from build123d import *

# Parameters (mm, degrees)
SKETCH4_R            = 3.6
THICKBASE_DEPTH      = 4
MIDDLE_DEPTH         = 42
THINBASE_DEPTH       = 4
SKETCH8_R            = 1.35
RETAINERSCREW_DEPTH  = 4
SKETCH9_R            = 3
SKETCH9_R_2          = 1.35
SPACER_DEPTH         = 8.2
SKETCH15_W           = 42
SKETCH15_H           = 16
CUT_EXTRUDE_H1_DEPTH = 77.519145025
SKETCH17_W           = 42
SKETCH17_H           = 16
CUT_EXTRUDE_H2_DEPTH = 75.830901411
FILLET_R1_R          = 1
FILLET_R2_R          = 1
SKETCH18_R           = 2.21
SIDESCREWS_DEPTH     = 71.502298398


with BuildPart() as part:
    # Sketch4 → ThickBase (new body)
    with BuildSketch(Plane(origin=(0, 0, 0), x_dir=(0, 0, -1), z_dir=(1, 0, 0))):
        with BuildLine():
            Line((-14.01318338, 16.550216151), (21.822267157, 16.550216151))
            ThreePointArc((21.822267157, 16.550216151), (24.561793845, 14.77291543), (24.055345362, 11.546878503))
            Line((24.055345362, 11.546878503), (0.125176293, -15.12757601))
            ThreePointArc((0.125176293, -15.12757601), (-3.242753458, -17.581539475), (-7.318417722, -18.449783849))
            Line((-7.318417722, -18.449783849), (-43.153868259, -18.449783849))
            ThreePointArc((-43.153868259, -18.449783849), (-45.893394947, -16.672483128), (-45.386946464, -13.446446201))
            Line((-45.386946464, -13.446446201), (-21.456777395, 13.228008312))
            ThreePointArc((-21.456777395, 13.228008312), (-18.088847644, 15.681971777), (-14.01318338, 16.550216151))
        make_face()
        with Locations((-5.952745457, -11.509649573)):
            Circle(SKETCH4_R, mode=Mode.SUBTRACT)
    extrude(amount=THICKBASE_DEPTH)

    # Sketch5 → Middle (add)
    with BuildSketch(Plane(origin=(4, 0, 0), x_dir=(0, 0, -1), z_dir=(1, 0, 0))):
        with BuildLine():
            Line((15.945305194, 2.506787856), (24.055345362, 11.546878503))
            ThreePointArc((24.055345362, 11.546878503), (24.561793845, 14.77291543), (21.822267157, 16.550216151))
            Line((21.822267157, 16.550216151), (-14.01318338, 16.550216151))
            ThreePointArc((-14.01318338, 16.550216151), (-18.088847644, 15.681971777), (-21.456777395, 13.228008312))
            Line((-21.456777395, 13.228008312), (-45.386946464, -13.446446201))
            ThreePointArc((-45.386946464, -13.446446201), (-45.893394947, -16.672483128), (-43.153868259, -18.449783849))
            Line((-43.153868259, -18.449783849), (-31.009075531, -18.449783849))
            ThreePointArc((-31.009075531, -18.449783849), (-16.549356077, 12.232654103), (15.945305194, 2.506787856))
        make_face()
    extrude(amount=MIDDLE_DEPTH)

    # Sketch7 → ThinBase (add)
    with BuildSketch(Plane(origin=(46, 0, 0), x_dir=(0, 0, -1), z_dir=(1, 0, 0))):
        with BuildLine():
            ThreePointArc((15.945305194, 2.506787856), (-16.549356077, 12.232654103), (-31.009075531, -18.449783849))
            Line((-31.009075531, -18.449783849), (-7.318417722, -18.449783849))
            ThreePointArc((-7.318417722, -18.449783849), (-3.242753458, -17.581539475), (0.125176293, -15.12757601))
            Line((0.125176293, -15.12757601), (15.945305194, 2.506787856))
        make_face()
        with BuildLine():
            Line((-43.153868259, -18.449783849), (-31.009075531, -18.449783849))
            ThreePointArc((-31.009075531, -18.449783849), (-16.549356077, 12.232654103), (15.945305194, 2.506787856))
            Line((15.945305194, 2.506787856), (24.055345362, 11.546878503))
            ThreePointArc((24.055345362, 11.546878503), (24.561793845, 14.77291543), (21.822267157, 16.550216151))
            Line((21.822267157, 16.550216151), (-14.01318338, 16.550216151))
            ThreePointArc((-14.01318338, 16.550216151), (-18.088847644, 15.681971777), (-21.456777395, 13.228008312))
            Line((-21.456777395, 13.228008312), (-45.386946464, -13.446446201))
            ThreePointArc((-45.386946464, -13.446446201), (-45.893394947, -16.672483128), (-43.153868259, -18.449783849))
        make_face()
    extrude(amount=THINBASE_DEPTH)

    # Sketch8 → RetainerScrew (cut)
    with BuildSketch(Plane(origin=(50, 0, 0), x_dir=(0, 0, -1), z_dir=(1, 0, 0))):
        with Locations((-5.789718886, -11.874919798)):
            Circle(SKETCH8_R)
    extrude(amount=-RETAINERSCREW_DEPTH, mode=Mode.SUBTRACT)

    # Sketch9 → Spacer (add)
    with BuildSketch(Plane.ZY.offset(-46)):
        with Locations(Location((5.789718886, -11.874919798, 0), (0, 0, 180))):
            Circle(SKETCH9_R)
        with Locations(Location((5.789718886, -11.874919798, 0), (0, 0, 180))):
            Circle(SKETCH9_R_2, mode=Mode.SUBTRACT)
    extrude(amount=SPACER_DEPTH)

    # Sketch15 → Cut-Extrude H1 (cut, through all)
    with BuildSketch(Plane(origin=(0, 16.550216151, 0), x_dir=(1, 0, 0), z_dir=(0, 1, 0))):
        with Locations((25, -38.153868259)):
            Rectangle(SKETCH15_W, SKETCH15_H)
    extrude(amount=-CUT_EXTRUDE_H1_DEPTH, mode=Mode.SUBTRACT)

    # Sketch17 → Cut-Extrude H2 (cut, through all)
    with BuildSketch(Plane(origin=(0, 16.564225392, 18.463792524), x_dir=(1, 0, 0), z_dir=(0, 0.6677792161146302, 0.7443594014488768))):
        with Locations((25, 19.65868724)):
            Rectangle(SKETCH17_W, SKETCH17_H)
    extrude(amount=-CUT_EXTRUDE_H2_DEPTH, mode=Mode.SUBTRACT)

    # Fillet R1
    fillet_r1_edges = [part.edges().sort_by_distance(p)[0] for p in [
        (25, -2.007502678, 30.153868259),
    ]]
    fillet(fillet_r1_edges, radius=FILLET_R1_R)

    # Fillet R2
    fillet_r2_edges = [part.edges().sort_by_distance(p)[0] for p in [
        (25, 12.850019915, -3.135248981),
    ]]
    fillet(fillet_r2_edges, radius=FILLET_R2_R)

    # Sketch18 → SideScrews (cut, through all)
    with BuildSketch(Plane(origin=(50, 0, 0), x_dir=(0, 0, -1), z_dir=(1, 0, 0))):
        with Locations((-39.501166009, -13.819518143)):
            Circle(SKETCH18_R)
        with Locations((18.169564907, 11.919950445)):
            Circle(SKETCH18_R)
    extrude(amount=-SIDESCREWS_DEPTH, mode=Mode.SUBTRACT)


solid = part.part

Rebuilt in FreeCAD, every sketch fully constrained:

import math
import FreeCAD as App
import Part
import Sketcher

V = App.Vector
Q = App.Units.Quantity


def edges_at(feature, points):
    """Names of the edges that pass closest to the given points."""
    edges = feature.Shape.Edges
    near = lambda p: min(range(len(edges)), key=lambda i: edges[i].distToShape(Part.Vertex(*p))[0])
    return sorted({f"Edge{near(p) + 1}" for p in points})


def add_polygon(sketch, points):
    """Adds a closed chain of lines whose ends are joined by coincident constraints."""
    first, n = sketch.GeometryCount, len(points)
    for a, b in zip(points, points[1:] + points[:1]):
        sketch.addGeometry(Part.LineSegment(App.Vector(*a, 0), App.Vector(*b, 0)), False)
    for i in range(n):
        sketch.addConstraint(Sketcher.Constraint("Coincident", first + i, 2, first + (i + 1) % n, 1))

doc = App.newDocument("Part")
body = doc.addObject("PartDesign::Body", "Body")

sketch1 = body.newObject("Sketcher::SketchObject", "Sketch")
sketch1.AttachmentSupport = (doc.getObject("YZ_Plane"), [""])
sketch1.MapMode = "FlatFace"
sketch1.addGeometry([
    Part.LineSegment(V(16.6, -21.8, 0), V(16.6, 14, 0)),
    Part.ArcOfCircle(Part.Circle(V(6.6, 14, 0), V(0, 0, 1), 10), math.radians(0), math.radians(48)),
    Part.LineSegment(V(13.2, 21.5, 0), V(-13.4, 45.4, 0)),
    Part.ArcOfCircle(Part.Circle(V(-15.4, 43.2, 0), V(0, 0, 1), 3), math.radians(48), math.radians(180)),
    Part.LineSegment(V(-18.4, 43.2, 0), V(-18.4, 7.3, 0)),
    Part.ArcOfCircle(Part.Circle(V(-8.4, 7.3, 0), V(0, 0, 1), 10), math.radians(180), math.radians(228)),
    Part.LineSegment(V(-15.1, -0.1, 0), V(11.5, -24.1, 0)),
    Part.ArcOfCircle(Part.Circle(V(13.6, -21.8, 0), V(0, 0, 1), 3), math.radians(-132), math.radians(0)),
    Part.Circle(V(-11.5, 6, 0), V(0, 0, 1), 3.6),
], False)
sketch1.addConstraint([
    Sketcher.Constraint("Tangent", 0, 2, 1, 1),
    Sketcher.Constraint("Tangent", 1, 2, 2, 1),
    Sketcher.Constraint("Tangent", 2, 2, 3, 1),
    Sketcher.Constraint("Tangent", 3, 2, 4, 1),
    Sketcher.Constraint("Tangent", 4, 2, 5, 1),
    Sketcher.Constraint("Tangent", 5, 2, 6, 1),
    Sketcher.Constraint("Tangent", 6, 2, 7, 1),
    Sketcher.Constraint("Tangent", 7, 2, 0, 1),
    Sketcher.Constraint("Vertical", 0),
    Sketcher.Constraint("Vertical", 4),
    Sketcher.Constraint("Equal", 1, 5),
    Sketcher.Constraint("Equal", 3, 7),
    Sketcher.Constraint("Parallel", 2, 6),
    Sketcher.Constraint("Radius", 1, Q("10 mm")),
    Sketcher.Constraint("Radius", 3, Q("3 mm")),
    Sketcher.Constraint("Diameter", 8, Q("7.2 mm")),
    Sketcher.Constraint("DistanceX", 3, 3, 1, 3, Q("22 mm")),
    Sketcher.Constraint("DistanceY", 0, 1, 0, 2, Q("35.835451 mm")),
    Sketcher.Constraint("DistanceY", 8, 3, 2, 2, Q("39.434201 mm")),
    Sketcher.Constraint("Distance", 2, Q("35.835451 mm")),
    Sketcher.Constraint("DistanceY", -1, 1, 3, 3, Q("43.153868 mm")),
    Sketcher.Constraint("DistanceX", 8, 3, -1, 1, Q("11.50965 mm")),
    Sketcher.Constraint("DistanceX", -1, 1, 1, 2, Q("13.228008 mm")),
])
pad1 = body.newObject("PartDesign::Pad", "Pad")
pad1.Profile = sketch1
pad1.Length = 4

sketch2 = body.newObject("Sketcher::SketchObject", "Sketch001")
sketch2.AttachmentSupport = (doc.getObject("YZ_Plane"), [""])
sketch2.MapMode = "FlatFace"
sketch2.AttachmentOffset = App.Placement(V(0, 0, 4), App.Rotation())
sketch2.addGeometry([
    Part.LineSegment(V(2.5, -15.9, 0), V(11.5, -24.1, 0)),
    Part.ArcOfCircle(Part.Circle(V(13.6, -21.8, 0), V(0, 0, 1), 3), math.radians(-132), math.radians(0)),
    Part.LineSegment(V(16.6, -21.8, 0), V(16.6, 14, 0)),
    Part.ArcOfCircle(Part.Circle(V(6.6, 14, 0), V(0, 0, 1), 10), math.radians(0), math.radians(48)),
    Part.LineSegment(V(13.2, 21.5, 0), V(-13.4, 45.4, 0)),
    Part.ArcOfCircle(Part.Circle(V(-15.4, 43.2, 0), V(0, 0, 1), 3), math.radians(48), math.radians(180)),
    Part.LineSegment(V(-18.4, 43.2, 0), V(-18.4, 31, 0)),
    Part.ArcOfCircle(Part.Circle(V(-11.5, 6, 0), V(0, 0, 1), 26), math.radians(-57), math.radians(105)),
], False)
sketch2.addConstraint([
    Sketcher.Constraint("Tangent", 0, 2, 1, 1),
    Sketcher.Constraint("Tangent", 1, 2, 2, 1),
    Sketcher.Constraint("Tangent", 2, 2, 3, 1),
    Sketcher.Constraint("Tangent", 3, 2, 4, 1),
    Sketcher.Constraint("Tangent", 4, 2, 5, 1),
    Sketcher.Constraint("Tangent", 5, 2, 6, 1),
    Sketcher.Constraint("Coincident", 6, 2, 7, 2),
    Sketcher.Constraint("Coincident", 7, 1, 0, 1),
    Sketcher.Constraint("Vertical", 2),
    Sketcher.Constraint("Vertical", 6),
    Sketcher.Constraint("Equal", 1, 5),
    Sketcher.Constraint("Parallel", 0, 4),
    Sketcher.Constraint("Radius", 1, Q("3 mm")),
    Sketcher.Constraint("Radius", 3, Q("10 mm")),
    Sketcher.Constraint("DistanceX", 5, 3, 3, 3, Q("22 mm")),
    Sketcher.Constraint("Radius", 7, Q("25.999714 mm")),
    Sketcher.Constraint("DistanceY", 2, 1, 2, 2, Q("35.835451 mm")),
    Sketcher.Constraint("DistanceY", 7, 3, 4, 2, Q("39.434201 mm")),
    Sketcher.Constraint("Distance", 4, Q("35.835451 mm")),
    Sketcher.Constraint("DistanceY", 6, 2, 6, 1, Q("12.144793 mm")),
    Sketcher.Constraint("DistanceY", -1, 1, 5, 3, Q("43.153868 mm")),
    Sketcher.Constraint("DistanceX", 7, 3, -1, 1, Q("11.50965 mm")),
])
pad2 = body.newObject("PartDesign::Pad", "Pad001")
pad2.Profile = sketch2
pad2.Length = 42

sketch3 = body.newObject("Sketcher::SketchObject", "Sketch002")
sketch3.AttachmentSupport = (doc.getObject("YZ_Plane"), [""])
sketch3.MapMode = "FlatFace"
sketch3.AttachmentOffset = App.Placement(V(0, 0, 46), App.Rotation())
sketch3.addGeometry([
    Part.ArcOfCircle(Part.Circle(V(-8.4, 7.3, 0), V(0, 0, 1), 10), math.radians(180), math.radians(228)),
    Part.LineSegment(V(-15.1, -0.1, 0), V(2.5, -15.9, 0)),
    Part.LineSegment(V(2.5, -15.9, 0), V(11.5, -24.1, 0)),
    Part.ArcOfCircle(Part.Circle(V(13.6, -21.8, 0), V(0, 0, 1), 3), math.radians(-132), math.radians(0)),
    Part.LineSegment(V(16.6, -21.8, 0), V(16.6, 14, 0)),
    Part.ArcOfCircle(Part.Circle(V(6.6, 14, 0), V(0, 0, 1), 10), math.radians(0), math.radians(48)),
    Part.LineSegment(V(13.2, 21.5, 0), V(-13.4, 45.4, 0)),
    Part.ArcOfCircle(Part.Circle(V(-15.4, 43.2, 0), V(0, 0, 1), 3), math.radians(48), math.radians(180)),
    Part.LineSegment(V(-18.4, 43.2, 0), V(-18.4, 7.3, 0)),
], False)
sketch3.addConstraint([
    Sketcher.Constraint("Tangent", 0, 2, 1, 1),
    Sketcher.Constraint("Coincident", 1, 2, 2, 1),
    Sketcher.Constraint("Tangent", 2, 2, 3, 1),
    Sketcher.Constraint("Tangent", 3, 2, 4, 1),
    Sketcher.Constraint("Tangent", 4, 2, 5, 1),
    Sketcher.Constraint("Tangent", 5, 2, 6, 1),
    Sketcher.Constraint("Tangent", 6, 2, 7, 1),
    Sketcher.Constraint("Tangent", 7, 2, 8, 1),
    Sketcher.Constraint("Tangent", 8, 2, 0, 1),
    Sketcher.Constraint("Vertical", 4),
    Sketcher.Constraint("Vertical", 8),
    Sketcher.Constraint("Equal", 0, 5),
    Sketcher.Constraint("Equal", 3, 7),
    Sketcher.Constraint("Parallel", 1, 2),
    Sketcher.Constraint("Parallel", 2, 6),
    Sketcher.Constraint("Radius", 0, Q("10 mm")),
    Sketcher.Constraint("Radius", 3, Q("3 mm")),
    Sketcher.Constraint("DistanceX", 0, 3, 3, 3, Q("22 mm")),
    Sketcher.Constraint("DistanceY", 4, 1, 4, 2, Q("35.835451 mm")),
    Sketcher.Constraint("Distance", 6, Q("35.835451 mm")),
    Sketcher.Constraint("DistanceY", -1, 1, 7, 3, Q("43.153868 mm")),
    Sketcher.Constraint("DistanceX", -1, 1, 2, 2, Q("11.546879 mm")),
    Sketcher.Constraint("DistanceX", 1, 2, 3, 3, Q("11.043428 mm")),
])
pad3 = body.newObject("PartDesign::Pad", "Pad002")
pad3.Profile = sketch3
pad3.Length = 4

sketch4 = body.newObject("Sketcher::SketchObject", "Sketch003")
sketch4.AttachmentSupport = (doc.getObject("YZ_Plane"), [""])
sketch4.MapMode = "FlatFace"
sketch4.AttachmentOffset = App.Placement(V(0, 0, 50), App.Rotation())
sketch4.addGeometry(Part.Circle(V(-11.9, 5.8, 0), V(0, 0, 1), 1.4), False)
sketch4.addConstraint([
    Sketcher.Constraint("Diameter", 0, Q("2.7 mm")),
    Sketcher.Constraint("DistanceX", 0, 3, -1, 1, Q("11.87492 mm")),
    Sketcher.Constraint("DistanceY", -1, 1, 0, 3, Q("5.789719 mm")),
])
pocket1 = body.newObject("PartDesign::Pocket", "Pocket")
pocket1.Profile = sketch4
pocket1.Length = 4

sketch5 = body.newObject("Sketcher::SketchObject", "Sketch004")
sketch5.AttachmentSupport = (doc.getObject("YZ_Plane"), [""])
sketch5.MapMode = "FlatFace"
sketch5.AttachmentOffset = App.Placement(V(0, 0, 46), App.Rotation())
sketch5.addGeometry([
    Part.Circle(V(-11.9, 5.8, 0), V(0, 0, 1), 3),
    Part.Circle(V(-11.9, 5.8, 0), V(0, 0, 1), 1.4),
], False)
sketch5.addConstraint([
    Sketcher.Constraint("Coincident", 1, 3, 0, 3),
    Sketcher.Constraint("Diameter", 0, Q("6 mm")),
    Sketcher.Constraint("Diameter", 1, Q("2.7 mm")),
    Sketcher.Constraint("DistanceX", 0, 3, -1, 1, Q("11.87492 mm")),
    Sketcher.Constraint("DistanceY", -1, 1, 0, 3, Q("5.789719 mm")),
])
pad4 = body.newObject("PartDesign::Pad", "Pad003")
pad4.Profile = sketch5
pad4.Length = 8.2
pad4.Reversed = True

sketch6 = body.newObject("Sketcher::SketchObject", "Sketch005")
sketch6.AttachmentSupport = (doc.getObject("XZ_Plane"), [""])
sketch6.MapMode = "FlatFace"
sketch6.AttachmentOffset = App.Placement(V(0, 0, -16.550216), App.Rotation())
add_polygon(sketch6, [(4, 30), (4, 46), (46, 46), (46, 30)])
sketch6.addConstraint([
    Sketcher.Constraint("Vertical", 0),
    Sketcher.Constraint("Horizontal", 1),
    Sketcher.Constraint("Vertical", 2),
    Sketcher.Constraint("Horizontal", 3),
    Sketcher.Constraint("DistanceX", 1, 1, 1, 2, Q("42 mm")),
    Sketcher.Constraint("DistanceY", 0, 1, 0, 2, Q("16 mm")),
    Sketcher.Constraint("DistanceX", -1, 1, 0, 2, Q("4 mm")),
    Sketcher.Constraint("DistanceY", -1, 1, 0, 2, Q("46.153868 mm")),
])
pocket2 = body.newObject("PartDesign::Pocket", "Pocket001")
pocket2.Profile = sketch6
pocket2.Type = "ThroughAll"
pocket2.Reversed = True

sketch7 = body.newObject("Sketcher::SketchObject", "Sketch006")
sketch7.Placement = App.Placement(V(0, 16.564225, 18.463793), App.Rotation(V(1, 0, 0), V(0, 0.744359401, -0.667779216), V(0, 0.667779216, 0.744359401), "ZXY"))
add_polygon(sketch7, [(4, 28), (4, 12), (46, 12), (46, 28)])
sketch7.addConstraint([
    Sketcher.Constraint("Vertical", 0),
    Sketcher.Constraint("Horizontal", 1),
    Sketcher.Constraint("Vertical", 2),
    Sketcher.Constraint("Horizontal", 3),
    Sketcher.Constraint("DistanceX", 1, 1, 1, 2, Q("42 mm")),
    Sketcher.Constraint("DistanceY", 0, 2, 0, 1, Q("16 mm")),
    Sketcher.Constraint("DistanceX", -1, 1, 0, 2, Q("4 mm")),
    Sketcher.Constraint("DistanceY", -1, 1, 0, 2, Q("11.658687 mm")),
])
pocket3 = body.newObject("PartDesign::Pocket", "Pocket002")
pocket3.Profile = sketch7
pocket3.Type = "ThroughAll"
doc.recompute()

fillet = body.newObject("PartDesign::Fillet", "Fillet")
fillet.Base = (pocket3, edges_at(pocket3, [(25, -2.008, 30.154)]))
fillet.Radius = 1
doc.recompute()

fillet2 = body.newObject("PartDesign::Fillet", "Fillet001")
fillet2.Base = (fillet, edges_at(fillet, [(25, 12.85, -3.135)]))
fillet2.Radius = 1

sketch8 = body.newObject("Sketcher::SketchObject", "Sketch007")
sketch8.AttachmentSupport = (doc.getObject("YZ_Plane"), [""])
sketch8.MapMode = "FlatFace"
sketch8.AttachmentOffset = App.Placement(V(0, 0, 50), App.Rotation())
sketch8.addGeometry([
    Part.Circle(V(-13.8, 39.5, 0), V(0, 0, 1), 2.2),
    Part.Circle(V(11.9, -18.2, 0), V(0, 0, 1), 2.2),
], False)
sketch8.addConstraint([
    Sketcher.Constraint("Equal", 0, 1),
    Sketcher.Constraint("Diameter", 0, Q("4.42 mm")),
    Sketcher.Constraint("DistanceX", 0, 3, -1, 1, Q("13.819518 mm")),
    Sketcher.Constraint("DistanceX", -1, 1, 1, 3, Q("11.91995 mm")),
    Sketcher.Constraint("DistanceY", 1, 3, 0, 3, Q("57.670731 mm")),
    Sketcher.Constraint("DistanceY", -1, 1, 0, 3, Q("39.501166 mm")),
])
pocket4 = body.newObject("PartDesign::Pocket", "Pocket003")
pocket4.Profile = sketch8
pocket4.Type = "ThroughAll"

doc.recompute()
